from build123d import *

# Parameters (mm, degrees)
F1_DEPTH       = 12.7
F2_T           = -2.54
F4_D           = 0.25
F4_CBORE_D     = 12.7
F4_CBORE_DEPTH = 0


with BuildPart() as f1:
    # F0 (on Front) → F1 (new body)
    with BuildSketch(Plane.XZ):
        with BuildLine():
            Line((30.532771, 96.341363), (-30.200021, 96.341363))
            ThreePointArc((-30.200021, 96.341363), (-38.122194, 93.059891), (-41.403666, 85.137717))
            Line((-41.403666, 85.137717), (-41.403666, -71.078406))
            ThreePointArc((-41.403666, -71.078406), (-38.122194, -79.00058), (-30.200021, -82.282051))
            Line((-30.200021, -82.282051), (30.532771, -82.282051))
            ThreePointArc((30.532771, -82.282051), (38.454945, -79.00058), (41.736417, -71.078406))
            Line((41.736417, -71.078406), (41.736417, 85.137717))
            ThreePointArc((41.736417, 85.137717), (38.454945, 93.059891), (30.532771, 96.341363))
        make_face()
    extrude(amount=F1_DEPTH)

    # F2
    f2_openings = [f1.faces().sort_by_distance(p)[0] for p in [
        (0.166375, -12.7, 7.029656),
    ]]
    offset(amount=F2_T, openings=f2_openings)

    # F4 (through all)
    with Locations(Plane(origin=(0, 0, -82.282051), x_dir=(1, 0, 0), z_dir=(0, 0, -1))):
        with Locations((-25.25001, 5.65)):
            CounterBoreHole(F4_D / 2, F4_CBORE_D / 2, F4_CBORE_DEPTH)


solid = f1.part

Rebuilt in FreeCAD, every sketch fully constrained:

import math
import FreeCAD as App
import Part
import Sketcher
Q = App.Units.Quantity


def faces_at(feature, points):
    """Names of the faces that lie closest to the given points."""
    faces = feature.Shape.Faces
    near = lambda p: min(range(len(faces)), key=lambda i: faces[i].distToShape(Part.Vertex(*p))[0])
    return sorted({f"Face{near(p) + 1}" for p in points})

doc = App.newDocument("Part")
body = doc.addObject("PartDesign::Body", "Body")

sketch1 = body.newObject("Sketcher::SketchObject", "Sketch")
sketch1.AttachmentSupport = (doc.getObject("XZ_Plane"), [""])
sketch1.MapMode = "FlatFace"
sketch1.addGeometry([
    Part.LineSegment(App.Vector(31, 96, 0), App.Vector(-30, 96, 0)),
    Part.ArcOfCircle(Part.Circle(App.Vector(-30, 85, 0), App.Vector(0, 0, 1), 11), math.radians(90), math.radians(180)),
    Part.LineSegment(App.Vector(-41, 85, 0), App.Vector(-41, -71, 0)),
    Part.ArcOfCircle(Part.Circle(App.Vector(-30, -71, 0), App.Vector(0, 0, 1), 11), math.radians(180), math.radians(270)),
    Part.LineSegment(App.Vector(-30, -82, 0), App.Vector(31, -82, 0)),
    Part.ArcOfCircle(Part.Circle(App.Vector(31, -71, 0), App.Vector(0, 0, 1), 11), math.radians(-90), math.radians(0)),
    Part.LineSegment(App.Vector(42, -71, 0), App.Vector(42, 85, 0)),
    Part.ArcOfCircle(Part.Circle(App.Vector(31, 85, 0), App.Vector(0, 0, 1), 11), math.radians(0), math.radians(90)),
], False)
sketch1.addConstraint([
    Sketcher.Constraint("Tangent", 0, 2, 1, 1),
    Sketcher.Constraint("Tangent", 1, 2, 2, 1),
    Sketcher.Constraint("Tangent", 2, 2, 3, 1),
    Sketcher.Constraint("Tangent", 3, 2, 4, 1),
    Sketcher.Constraint("Tangent", 4, 2, 5, 1),
    Sketcher.Constraint("Tangent", 5, 2, 6, 1),
    Sketcher.Constraint("Tangent", 6, 2, 7, 1),
    Sketcher.Constraint("Tangent", 7, 2, 0, 1),
    Sketcher.Constraint("Horizontal", 0),
    Sketcher.Constraint("Vertical", 2),
    Sketcher.Constraint("Horizontal", 4),
    Sketcher.Constraint("Vertical", 6),
    Sketcher.Constraint("Equal", 1, 3),
    Sketcher.Constraint("Equal", 3, 5),
    Sketcher.Constraint("Equal", 5, 7),
    Sketcher.Constraint("Radius", 1, 11.203646),
    Sketcher.Constraint("DistanceX", 0, 2, 0, 1, 60.732792),
    Sketcher.Constraint("DistanceY", 2, 2, 2, 1, 156.216123),
    Sketcher.Constraint("DistanceX", 1, 3, -1, 1, 30.20002),
    Sketcher.Constraint("DistanceY", 3, 2, -1, 1, 82.282051),
])
pad1 = body.newObject("PartDesign::Pad", "Pad")
pad1.Profile = sketch1
pad1.Length = Q("0.5 in")
doc.recompute()

thickness = body.newObject("PartDesign::Thickness", "Thickness")
thickness.Base = (pad1, faces_at(pad1, [(0.166, -12.7, 7.03)]))
thickness.Value = Q("0.1 in")
thickness.Reversed = True
thickness.Join = "Arc"

sketch2 = body.newObject("Sketcher::SketchObject", "Sketch001")
sketch2.AttachmentSupport = (doc.getObject("XY_Plane"), [""])
sketch2.MapMode = "FlatFace"
sketch2.AttachmentOffset = App.Placement(App.Vector(0, 0, -82.282051), App.Rotation())
sketch2.addGeometry(Part.Circle(App.Vector(-25.25, -5.65, 0), App.Vector(0, 0, 1), 0.12), False)
sketch2.addConstraint([
    Sketcher.Constraint("Diameter", 0, 0.25),
    Sketcher.Constraint("DistanceY", 0, 3, -1, 1, 5.65),
    Sketcher.Constraint("DistanceX", 0, 3, -1, 1, 25.25001),
])
doc.recompute()
hole = body.newObject("PartDesign::Hole", "Hole")
hole.Profile = sketch2
hole.ThreadType = "None"
hole.Diameter = 0.25
hole.DepthType = "ThroughAll"
hole.HoleCutType = "Counterbore"
hole.HoleCutDiameter = Q("0.5 in")
hole.HoleCutDepth = Q("0 in")
hole.Reversed = True

doc.recompute()
